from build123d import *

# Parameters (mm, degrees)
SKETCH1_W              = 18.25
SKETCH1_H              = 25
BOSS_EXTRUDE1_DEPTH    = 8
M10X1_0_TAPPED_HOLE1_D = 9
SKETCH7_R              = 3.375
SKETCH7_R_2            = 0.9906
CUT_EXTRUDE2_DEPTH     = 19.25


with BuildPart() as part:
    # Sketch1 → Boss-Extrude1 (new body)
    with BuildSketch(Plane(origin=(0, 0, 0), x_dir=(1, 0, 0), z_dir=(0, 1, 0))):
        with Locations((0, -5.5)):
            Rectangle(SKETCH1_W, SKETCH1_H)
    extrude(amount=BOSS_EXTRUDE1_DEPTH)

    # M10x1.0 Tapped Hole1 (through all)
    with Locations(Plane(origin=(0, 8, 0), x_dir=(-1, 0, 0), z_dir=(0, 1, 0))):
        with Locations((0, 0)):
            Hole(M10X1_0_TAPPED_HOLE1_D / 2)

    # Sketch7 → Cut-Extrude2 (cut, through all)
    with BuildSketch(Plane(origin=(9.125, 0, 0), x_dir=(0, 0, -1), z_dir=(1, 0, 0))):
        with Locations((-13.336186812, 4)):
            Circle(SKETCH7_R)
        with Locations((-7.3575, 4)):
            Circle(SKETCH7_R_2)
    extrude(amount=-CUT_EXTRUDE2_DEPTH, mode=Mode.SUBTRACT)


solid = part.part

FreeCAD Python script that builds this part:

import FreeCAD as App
import Part
import Sketcher
Q = App.Units.Quantity

doc = App.newDocument("Part")
body = doc.addObject("PartDesign::Body", "Body")

sketch1 = doc.addObject("Sketcher::SketchObject", "Sketch")
body.addObject(sketch1)
sketch1.AttachmentSupport = (doc.XZ_Plane, [""])
sketch1.MapMode = "FlatFace"
sketch1.addGeometry(Part.LineSegment(App.Vector(-9.125, -7, 0), App.Vector(-9.125, 18, 0)), False)
sketch1.addGeometry(Part.LineSegment(App.Vector(-9.125, 18, 0), App.Vector(9.125, 18, 0)), False)
sketch1.addGeometry(Part.LineSegment(App.Vector(9.125, 18, 0), App.Vector(9.125, -7, 0)), False)
sketch1.addGeometry(Part.LineSegment(App.Vector(9.125, -7, 0), App.Vector(-9.125, -7, 0)), False)
sketch1.addConstraint(Sketcher.Constraint("Coincident", 0, 2, 1, 1))
sketch1.addConstraint(Sketcher.Constraint("Coincident", 1, 2, 2, 1))
sketch1.addConstraint(Sketcher.Constraint("Coincident", 2, 2, 3, 1))
sketch1.addConstraint(Sketcher.Constraint("Coincident", 3, 2, 0, 1))
sketch1.addConstraint(Sketcher.Constraint("Vertical", 0))
sketch1.addConstraint(Sketcher.Constraint("Horizontal", 1))
sketch1.addConstraint(Sketcher.Constraint("Vertical", 2))
sketch1.addConstraint(Sketcher.Constraint("Horizontal", 3))
sketch1.addConstraint(Sketcher.Constraint("DistanceY", 0, 1, 0, 2, Q("25 mm")))
sketch1.addConstraint(Sketcher.Constraint("DistanceY", -1, 1, 0, 2, Q("18 mm")))
sketch1.addConstraint(Sketcher.Constraint("DistanceX", 1, 1, 1, 2, Q("18.25 mm")))
sketch1.addConstraint(Sketcher.Constraint("DistanceX", 0, 2, -1, 1, Q("9.125 mm")))
pad1 = doc.addObject("PartDesign::Pad", "Pad")
body.addObject(pad1)
pad1.Profile = sketch1
pad1.Length = 8
pad1.Reversed = True

sketch2 = doc.addObject("Sketcher::SketchObject", "Sketch001")
body.addObject(sketch2)
sketch2.AttachmentSupport = (doc.XZ_Plane, [""])
sketch2.MapMode = "FlatFace"
sketch2.AttachmentOffset = App.Placement(App.Vector(0, 0, -8), App.Rotation())
sketch2.addGeometry(Part.Circle(App.Vector(0, 0, 0), App.Vector(0, 0, 1), 4.5), False)
sketch2.addConstraint(Sketcher.Constraint("Coincident", 0, 3, -1, 1))
sketch2.addConstraint(Sketcher.Constraint("Diameter", 0, Q("9 mm")))
doc.recompute()
hole = doc.addObject("PartDesign::Hole", "Hole")
body.addObject(hole)
hole.Profile = sketch2
hole.ThreadType = "None"
hole.Diameter = 9
hole.DepthType = "ThroughAll"
hole.Reversed = True

sketch3 = doc.addObject("Sketcher::SketchObject", "Sketch002")
body.addObject(sketch3)
sketch3.AttachmentSupport = (doc.YZ_Plane, [""])
sketch3.MapMode = "FlatFace"
sketch3.AttachmentOffset = App.Placement(App.Vector(0, 0, 9.125), App.Rotation())
sketch3.addGeometry(Part.Circle(App.Vector(4, 13.336187, 0), App.Vector(0, 0, 1), 3.375), False)
sketch3.addGeometry(Part.Circle(App.Vector(4, 7.3575, 0), App.Vector(0, 0, 1), 0.9906), False)
sketch3.addConstraint(Sketcher.Constraint("Vertical", 0, 3, 1, 3))
sketch3.addConstraint(Sketcher.Constraint("Diameter", 0, Q("6.75 mm")))
sketch3.addConstraint(Sketcher.Constraint("DistanceX", -1, 1, 0, 3, Q("4 mm")))
sketch3.addConstraint(Sketcher.Constraint("Diameter", 1, Q("1.9812 mm")))
sketch3.addConstraint(Sketcher.Constraint("DistanceY", -1, 1, 1, 3, Q("7.3575 mm")))
sketch3.addConstraint(Sketcher.Constraint("DistanceY", -1, 1, 0, 3, Q("13.336187 mm")))
pocket1 = doc.addObject("PartDesign::Pocket", "Pocket")
body.addObject(pocket1)
pocket1.Profile = sketch3
pocket1.Type = "ThroughAll"

doc.recompute()
